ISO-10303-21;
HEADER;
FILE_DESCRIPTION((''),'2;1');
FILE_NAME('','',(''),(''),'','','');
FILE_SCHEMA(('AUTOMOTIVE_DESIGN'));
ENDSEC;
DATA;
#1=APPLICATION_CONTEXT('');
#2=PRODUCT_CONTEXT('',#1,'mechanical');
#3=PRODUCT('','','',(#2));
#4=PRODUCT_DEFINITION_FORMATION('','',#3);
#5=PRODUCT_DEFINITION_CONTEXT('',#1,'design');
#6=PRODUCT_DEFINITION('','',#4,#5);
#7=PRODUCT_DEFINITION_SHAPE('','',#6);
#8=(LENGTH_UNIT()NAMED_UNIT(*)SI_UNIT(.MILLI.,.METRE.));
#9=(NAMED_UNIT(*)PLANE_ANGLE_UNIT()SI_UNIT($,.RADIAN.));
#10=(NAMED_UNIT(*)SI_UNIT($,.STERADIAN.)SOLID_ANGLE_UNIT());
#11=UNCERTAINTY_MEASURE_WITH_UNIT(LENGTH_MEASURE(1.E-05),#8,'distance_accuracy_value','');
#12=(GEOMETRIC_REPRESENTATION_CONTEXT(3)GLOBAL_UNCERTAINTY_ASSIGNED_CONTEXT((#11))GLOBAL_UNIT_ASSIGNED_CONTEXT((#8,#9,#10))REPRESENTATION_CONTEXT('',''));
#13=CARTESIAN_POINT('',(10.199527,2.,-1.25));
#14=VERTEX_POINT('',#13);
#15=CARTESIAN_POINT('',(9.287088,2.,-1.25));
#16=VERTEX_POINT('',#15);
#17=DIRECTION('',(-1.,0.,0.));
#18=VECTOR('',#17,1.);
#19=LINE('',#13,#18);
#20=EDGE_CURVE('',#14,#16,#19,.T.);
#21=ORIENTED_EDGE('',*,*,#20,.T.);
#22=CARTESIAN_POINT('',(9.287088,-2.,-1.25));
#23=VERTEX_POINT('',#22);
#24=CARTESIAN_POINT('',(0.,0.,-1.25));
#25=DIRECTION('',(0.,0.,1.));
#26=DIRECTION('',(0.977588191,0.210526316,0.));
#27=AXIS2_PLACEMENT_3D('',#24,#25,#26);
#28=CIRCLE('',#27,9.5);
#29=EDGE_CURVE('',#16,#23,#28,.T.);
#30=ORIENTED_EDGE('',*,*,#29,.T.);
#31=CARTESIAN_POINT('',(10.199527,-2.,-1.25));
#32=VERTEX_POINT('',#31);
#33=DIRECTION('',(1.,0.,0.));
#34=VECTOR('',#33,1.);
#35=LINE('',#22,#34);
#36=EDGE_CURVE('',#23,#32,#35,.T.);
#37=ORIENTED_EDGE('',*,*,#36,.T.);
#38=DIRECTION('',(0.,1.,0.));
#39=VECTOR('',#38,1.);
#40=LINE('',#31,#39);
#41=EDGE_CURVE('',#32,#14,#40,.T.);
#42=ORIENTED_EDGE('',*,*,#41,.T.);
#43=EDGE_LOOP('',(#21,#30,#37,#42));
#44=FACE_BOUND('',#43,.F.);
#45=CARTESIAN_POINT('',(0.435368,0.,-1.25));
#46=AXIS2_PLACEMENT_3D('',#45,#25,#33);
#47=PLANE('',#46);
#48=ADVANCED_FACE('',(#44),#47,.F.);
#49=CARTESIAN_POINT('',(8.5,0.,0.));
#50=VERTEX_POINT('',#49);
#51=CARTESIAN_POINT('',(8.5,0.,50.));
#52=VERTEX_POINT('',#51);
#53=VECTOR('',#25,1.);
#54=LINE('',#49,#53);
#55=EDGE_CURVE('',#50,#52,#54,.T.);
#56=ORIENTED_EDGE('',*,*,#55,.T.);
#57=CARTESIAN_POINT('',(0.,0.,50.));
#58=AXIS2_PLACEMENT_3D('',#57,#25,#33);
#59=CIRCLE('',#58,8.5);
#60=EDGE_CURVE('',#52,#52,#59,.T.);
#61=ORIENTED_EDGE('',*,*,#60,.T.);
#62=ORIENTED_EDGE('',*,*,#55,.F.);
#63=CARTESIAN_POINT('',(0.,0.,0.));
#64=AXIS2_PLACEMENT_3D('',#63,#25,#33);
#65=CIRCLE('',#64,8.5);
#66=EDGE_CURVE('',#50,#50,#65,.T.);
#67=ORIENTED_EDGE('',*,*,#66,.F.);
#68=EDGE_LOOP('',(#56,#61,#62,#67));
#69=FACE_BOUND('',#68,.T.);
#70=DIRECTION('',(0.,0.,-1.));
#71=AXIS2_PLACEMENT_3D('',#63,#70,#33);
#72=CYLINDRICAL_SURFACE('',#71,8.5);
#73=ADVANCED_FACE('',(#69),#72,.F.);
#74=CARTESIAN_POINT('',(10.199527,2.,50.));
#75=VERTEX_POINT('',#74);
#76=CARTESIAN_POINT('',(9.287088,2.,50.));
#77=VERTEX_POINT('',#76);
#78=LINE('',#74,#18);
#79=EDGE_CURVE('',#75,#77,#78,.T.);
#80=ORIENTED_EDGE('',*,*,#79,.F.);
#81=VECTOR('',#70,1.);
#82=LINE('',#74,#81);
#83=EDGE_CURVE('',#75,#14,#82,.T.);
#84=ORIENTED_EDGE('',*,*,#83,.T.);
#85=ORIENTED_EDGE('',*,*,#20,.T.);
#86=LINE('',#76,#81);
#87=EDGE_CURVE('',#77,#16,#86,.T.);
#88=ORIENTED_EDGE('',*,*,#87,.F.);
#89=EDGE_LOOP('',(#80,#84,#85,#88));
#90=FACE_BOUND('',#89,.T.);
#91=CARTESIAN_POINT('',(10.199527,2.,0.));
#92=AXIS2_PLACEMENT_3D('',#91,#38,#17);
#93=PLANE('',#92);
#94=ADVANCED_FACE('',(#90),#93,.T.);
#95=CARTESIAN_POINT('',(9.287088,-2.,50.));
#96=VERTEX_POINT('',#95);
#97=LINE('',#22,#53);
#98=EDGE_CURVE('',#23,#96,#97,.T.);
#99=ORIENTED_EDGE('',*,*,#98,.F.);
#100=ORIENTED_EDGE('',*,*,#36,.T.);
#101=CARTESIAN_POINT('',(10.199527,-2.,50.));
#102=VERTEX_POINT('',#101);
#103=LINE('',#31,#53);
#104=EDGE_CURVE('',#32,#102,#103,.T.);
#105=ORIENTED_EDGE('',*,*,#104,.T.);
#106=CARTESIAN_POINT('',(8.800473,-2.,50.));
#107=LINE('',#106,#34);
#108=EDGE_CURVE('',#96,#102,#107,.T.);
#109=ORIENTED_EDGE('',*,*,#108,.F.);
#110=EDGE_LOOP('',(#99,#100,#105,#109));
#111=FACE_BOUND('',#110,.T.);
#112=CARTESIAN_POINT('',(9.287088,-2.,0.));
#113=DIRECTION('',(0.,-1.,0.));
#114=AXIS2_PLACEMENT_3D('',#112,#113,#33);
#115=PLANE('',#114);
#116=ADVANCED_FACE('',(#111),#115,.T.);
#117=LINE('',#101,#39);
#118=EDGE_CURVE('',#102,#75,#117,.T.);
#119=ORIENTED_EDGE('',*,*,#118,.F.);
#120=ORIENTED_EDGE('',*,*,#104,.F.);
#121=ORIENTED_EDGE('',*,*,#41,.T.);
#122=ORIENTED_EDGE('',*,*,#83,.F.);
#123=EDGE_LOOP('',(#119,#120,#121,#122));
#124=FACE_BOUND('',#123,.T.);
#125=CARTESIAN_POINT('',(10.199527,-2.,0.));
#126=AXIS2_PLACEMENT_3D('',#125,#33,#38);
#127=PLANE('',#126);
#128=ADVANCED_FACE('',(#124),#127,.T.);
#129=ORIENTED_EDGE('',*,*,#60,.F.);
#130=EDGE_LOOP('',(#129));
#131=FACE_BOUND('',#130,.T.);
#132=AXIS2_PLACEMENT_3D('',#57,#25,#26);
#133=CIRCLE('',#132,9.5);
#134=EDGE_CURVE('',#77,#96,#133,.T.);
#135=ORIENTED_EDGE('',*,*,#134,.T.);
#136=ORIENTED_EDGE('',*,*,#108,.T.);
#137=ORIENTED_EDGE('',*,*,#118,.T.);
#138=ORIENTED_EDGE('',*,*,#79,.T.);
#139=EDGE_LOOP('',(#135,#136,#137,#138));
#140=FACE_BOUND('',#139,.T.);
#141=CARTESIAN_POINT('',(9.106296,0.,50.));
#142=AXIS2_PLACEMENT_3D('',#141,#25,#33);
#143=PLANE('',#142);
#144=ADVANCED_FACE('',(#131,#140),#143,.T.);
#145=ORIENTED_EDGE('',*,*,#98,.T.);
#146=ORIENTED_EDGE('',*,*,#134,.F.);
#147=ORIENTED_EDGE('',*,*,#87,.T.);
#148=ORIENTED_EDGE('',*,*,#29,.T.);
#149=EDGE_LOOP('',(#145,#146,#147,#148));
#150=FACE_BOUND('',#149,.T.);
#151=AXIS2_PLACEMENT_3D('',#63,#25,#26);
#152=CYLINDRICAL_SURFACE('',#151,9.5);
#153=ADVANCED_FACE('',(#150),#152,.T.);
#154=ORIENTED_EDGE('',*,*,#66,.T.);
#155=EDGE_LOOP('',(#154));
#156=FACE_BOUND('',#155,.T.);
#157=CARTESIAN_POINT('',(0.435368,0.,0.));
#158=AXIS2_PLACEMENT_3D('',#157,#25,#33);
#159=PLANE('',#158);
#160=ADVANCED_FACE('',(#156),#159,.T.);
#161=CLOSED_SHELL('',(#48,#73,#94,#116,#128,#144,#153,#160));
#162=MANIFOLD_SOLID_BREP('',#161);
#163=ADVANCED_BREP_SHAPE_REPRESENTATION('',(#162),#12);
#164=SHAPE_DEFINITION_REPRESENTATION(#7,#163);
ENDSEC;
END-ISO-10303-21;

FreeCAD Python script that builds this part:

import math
import FreeCAD as App
import Part
import Sketcher

V = App.Vector
Q = App.Units.Quantity

doc = App.newDocument("Part")
body = doc.addObject("PartDesign::Body", "Body")

# Sketch on XY plane
sketch1 = body.newObject("Sketcher::SketchObject", "Sketch")
sketch1.AttachmentSupport = (doc.getObject("XY_Plane"), [""])
sketch1.MapMode = "FlatFace"
sketch1.addGeometry([
    Part.LineSegment(V(9.287088, -2, 0), V(10.199527, -2, 0)),  # 0
    Part.LineSegment(V(10.199527, -2, 0), V(10.199527, 2, 0)),  # 1
    Part.LineSegment(V(10.199527, 2, 0), V(9.287088, 2, 0)),  # 2
    Part.ArcOfCircle(Part.Circle(V(0, 0, 0), V(0, 0, 1), 9.5), math.radians(12.153197), math.radians(347.846803)),  # 3
    Part.Circle(V(0, 0, 0), V(0, 0, 1), 8.5),  # 4
], False)
sketch1.addConstraint([
    Sketcher.Constraint("Coincident", 0, 2, 1, 1),
    Sketcher.Constraint("Coincident", 1, 2, 2, 1),
    Sketcher.Constraint("Coincident", 2, 2, 3, 1),
    Sketcher.Constraint("Coincident", 3, 2, 0, 1),
    Sketcher.Constraint("Horizontal", 0),
    Sketcher.Constraint("Vertical", 1),
    Sketcher.Constraint("Horizontal", 2),
    Sketcher.Constraint("Coincident", 3, 3, -1, 1),
    Sketcher.Constraint("Coincident", 4, 3, -1, 1),
    Sketcher.Constraint("Vertical", 2, 2, 3, 2),
    Sketcher.Constraint("Diameter", 4, Q("17 mm")),
    Sketcher.Constraint("Radius", 3, Q("9.5 mm")),
    Sketcher.Constraint("DistanceY", 1, 1, 1, 2, Q("4 mm")),
    Sketcher.Constraint("DistanceX", 0, 1, 0, 2, Q("0.912439 mm")),
])
pad1 = body.newObject("PartDesign::Pad", "Pad")
pad1.Profile = sketch1
pad1.Length = 50

# Sketch on XY plane
sketch2 = body.newObject("Sketcher::SketchObject", "Sketch001")
sketch2.AttachmentSupport = (doc.getObject("XY_Plane"), [""])
sketch2.MapMode = "FlatFace"
sketch2.addGeometry([
    Part.ArcOfCircle(Part.Circle(V(0, 0, 0), V(0, 0, 1), 9.5), math.radians(12.153197), math.radians(347.846803)),
    Part.LineSegment(V(9.287088, -2, 0), V(10.199527, -2, 0)),
    Part.LineSegment(V(10.199527, -2, 0), V(10.199527, 2, 0)),
    Part.LineSegment(V(10.199527, 2, 0), V(9.287088, 2, 0)),
], False)
sketch2.addConstraint([
    Sketcher.Constraint("Coincident", 0, 2, 1, 1),
    Sketcher.Constraint("Coincident", 1, 2, 2, 1),
    Sketcher.Constraint("Coincident", 2, 2, 3, 1),
    Sketcher.Constraint("Coincident", 3, 2, 0, 1),
    Sketcher.Constraint("Horizontal", 1),
    Sketcher.Constraint("Vertical", 2),
    Sketcher.Constraint("Horizontal", 3),
    Sketcher.Constraint("Coincident", 0, 3, -1, 1),
    Sketcher.Constraint("Vertical", 0, 2, 3, 2),
    Sketcher.Constraint("Radius", 0, Q("9.5 mm")),
    Sketcher.Constraint("DistanceY", 2, 1, 2, 2, Q("4 mm")),
    Sketcher.Constraint("DistanceX", 1, 1, 1, 2, Q("0.912439 mm")),
])
pad2 = body.newObject("PartDesign::Pad", "Pad001")
pad2.Profile = sketch2
pad2.Length = 1.25
pad2.Reversed = True

doc.recompute()
